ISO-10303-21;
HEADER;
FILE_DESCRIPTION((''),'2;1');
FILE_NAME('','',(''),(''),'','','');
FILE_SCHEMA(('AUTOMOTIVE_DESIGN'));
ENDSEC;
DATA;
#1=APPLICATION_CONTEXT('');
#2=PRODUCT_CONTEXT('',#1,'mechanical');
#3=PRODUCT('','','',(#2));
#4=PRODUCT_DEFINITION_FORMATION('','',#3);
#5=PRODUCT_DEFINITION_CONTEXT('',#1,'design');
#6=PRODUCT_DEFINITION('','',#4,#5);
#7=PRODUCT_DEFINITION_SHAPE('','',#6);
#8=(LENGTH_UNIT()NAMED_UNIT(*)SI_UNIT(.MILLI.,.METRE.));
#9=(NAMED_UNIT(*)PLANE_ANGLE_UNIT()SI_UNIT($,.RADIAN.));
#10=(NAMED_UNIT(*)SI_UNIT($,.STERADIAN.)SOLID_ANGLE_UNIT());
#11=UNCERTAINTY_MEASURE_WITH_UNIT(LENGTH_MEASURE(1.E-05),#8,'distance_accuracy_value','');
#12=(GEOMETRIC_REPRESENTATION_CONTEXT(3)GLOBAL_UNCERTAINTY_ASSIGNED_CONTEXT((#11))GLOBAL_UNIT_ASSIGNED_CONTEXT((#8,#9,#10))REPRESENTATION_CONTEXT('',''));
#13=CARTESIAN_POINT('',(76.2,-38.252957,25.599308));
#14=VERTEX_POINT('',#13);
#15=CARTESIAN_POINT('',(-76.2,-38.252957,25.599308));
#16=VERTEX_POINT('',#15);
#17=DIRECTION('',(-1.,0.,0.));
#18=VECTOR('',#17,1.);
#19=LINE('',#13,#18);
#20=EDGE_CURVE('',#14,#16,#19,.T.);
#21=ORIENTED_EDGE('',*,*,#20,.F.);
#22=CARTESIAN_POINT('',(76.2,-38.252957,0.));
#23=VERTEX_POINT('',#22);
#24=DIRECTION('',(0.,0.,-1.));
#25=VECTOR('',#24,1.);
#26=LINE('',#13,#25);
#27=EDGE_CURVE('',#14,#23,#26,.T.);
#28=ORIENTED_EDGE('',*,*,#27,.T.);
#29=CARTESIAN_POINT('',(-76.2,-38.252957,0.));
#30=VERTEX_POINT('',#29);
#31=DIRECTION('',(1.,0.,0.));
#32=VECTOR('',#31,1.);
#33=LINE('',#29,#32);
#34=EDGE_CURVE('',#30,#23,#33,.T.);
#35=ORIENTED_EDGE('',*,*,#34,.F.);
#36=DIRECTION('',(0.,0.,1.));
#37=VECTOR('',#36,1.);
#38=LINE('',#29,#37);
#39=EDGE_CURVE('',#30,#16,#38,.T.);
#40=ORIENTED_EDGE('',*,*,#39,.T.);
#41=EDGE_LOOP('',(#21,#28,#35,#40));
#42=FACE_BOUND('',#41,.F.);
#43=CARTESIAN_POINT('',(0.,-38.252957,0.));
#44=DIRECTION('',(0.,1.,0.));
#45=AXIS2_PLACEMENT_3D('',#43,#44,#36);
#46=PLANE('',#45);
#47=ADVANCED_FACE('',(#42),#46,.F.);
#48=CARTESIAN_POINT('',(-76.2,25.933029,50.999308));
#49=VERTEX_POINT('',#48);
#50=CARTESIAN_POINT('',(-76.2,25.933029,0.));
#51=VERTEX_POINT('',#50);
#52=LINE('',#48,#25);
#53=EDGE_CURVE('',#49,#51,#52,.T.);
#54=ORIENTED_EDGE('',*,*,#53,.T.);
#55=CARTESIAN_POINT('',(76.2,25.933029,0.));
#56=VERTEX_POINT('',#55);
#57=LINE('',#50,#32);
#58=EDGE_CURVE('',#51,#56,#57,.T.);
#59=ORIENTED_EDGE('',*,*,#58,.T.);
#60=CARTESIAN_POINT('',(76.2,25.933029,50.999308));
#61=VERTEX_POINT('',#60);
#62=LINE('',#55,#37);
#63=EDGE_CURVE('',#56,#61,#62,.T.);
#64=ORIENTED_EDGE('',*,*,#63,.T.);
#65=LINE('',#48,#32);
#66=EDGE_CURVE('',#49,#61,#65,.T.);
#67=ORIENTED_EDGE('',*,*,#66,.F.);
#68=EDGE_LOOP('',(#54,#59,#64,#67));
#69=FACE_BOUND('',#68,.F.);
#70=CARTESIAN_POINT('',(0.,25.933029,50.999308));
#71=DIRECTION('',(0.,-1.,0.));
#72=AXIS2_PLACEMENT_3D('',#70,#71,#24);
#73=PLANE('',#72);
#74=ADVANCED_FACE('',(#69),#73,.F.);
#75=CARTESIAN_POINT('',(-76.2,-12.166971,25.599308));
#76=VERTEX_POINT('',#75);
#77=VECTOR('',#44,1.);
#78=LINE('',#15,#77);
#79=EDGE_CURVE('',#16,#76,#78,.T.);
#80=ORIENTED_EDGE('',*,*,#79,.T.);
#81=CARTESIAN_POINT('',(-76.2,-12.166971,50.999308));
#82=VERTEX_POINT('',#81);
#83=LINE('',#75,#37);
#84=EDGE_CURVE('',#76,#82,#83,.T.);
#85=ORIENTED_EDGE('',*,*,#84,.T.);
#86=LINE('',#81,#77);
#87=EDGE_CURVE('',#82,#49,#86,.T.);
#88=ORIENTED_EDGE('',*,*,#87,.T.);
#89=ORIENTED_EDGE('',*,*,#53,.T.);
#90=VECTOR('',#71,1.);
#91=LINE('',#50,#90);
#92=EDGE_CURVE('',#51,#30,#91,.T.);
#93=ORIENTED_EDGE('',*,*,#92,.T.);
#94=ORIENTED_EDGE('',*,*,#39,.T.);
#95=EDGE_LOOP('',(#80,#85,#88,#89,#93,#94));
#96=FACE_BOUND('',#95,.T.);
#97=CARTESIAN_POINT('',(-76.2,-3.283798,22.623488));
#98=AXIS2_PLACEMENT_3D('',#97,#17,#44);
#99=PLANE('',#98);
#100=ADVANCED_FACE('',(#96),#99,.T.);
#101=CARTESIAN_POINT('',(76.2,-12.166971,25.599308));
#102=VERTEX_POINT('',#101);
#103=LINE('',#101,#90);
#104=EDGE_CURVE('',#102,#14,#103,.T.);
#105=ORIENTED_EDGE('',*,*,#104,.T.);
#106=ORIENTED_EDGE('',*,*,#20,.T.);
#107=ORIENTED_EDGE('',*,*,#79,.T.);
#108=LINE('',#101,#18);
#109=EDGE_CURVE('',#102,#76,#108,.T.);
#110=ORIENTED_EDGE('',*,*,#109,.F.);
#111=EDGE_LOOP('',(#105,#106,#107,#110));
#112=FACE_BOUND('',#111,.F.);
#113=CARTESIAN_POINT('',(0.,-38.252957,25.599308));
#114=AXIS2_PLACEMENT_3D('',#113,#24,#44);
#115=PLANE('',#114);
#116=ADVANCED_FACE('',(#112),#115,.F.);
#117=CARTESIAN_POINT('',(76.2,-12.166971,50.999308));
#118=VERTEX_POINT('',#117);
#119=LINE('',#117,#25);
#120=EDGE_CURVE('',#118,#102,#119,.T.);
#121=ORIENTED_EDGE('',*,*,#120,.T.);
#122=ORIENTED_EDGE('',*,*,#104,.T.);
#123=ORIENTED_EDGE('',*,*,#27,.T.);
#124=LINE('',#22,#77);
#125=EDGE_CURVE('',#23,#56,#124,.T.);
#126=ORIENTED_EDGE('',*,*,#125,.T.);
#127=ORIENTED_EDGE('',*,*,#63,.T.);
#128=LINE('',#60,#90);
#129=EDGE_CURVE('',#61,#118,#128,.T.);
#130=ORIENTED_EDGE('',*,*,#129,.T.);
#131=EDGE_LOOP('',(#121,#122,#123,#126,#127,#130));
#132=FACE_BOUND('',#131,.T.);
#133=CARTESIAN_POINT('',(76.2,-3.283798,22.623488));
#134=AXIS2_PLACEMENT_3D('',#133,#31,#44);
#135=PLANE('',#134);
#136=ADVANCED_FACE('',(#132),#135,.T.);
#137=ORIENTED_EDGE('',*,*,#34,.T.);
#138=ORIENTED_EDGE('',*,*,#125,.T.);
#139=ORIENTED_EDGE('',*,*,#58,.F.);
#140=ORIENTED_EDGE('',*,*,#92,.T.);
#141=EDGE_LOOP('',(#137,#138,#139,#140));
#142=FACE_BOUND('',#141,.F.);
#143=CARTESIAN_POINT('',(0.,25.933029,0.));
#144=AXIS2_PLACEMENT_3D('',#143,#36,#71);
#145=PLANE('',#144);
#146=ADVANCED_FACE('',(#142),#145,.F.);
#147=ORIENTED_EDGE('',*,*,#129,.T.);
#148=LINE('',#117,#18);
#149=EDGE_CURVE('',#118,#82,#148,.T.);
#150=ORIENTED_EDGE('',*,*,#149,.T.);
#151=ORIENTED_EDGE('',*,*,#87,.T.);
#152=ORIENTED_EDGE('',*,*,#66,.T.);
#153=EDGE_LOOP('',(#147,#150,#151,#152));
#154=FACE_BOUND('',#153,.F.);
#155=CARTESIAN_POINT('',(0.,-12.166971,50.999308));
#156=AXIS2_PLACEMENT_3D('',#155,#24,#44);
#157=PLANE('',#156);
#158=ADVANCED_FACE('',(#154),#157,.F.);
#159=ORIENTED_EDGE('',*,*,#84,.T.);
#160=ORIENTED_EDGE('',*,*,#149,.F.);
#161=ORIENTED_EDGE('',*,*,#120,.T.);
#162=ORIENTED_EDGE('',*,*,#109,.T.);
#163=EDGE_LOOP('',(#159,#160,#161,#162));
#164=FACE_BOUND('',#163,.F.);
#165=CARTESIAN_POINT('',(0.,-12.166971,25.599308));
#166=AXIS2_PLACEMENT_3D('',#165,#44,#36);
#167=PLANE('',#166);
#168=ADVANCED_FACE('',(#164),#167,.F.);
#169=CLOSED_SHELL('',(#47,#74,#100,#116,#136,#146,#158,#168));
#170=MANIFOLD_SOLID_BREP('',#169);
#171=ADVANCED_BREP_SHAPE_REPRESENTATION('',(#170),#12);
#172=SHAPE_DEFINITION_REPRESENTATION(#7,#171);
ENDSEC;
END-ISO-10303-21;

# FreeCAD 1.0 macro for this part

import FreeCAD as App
import Part
import Sketcher
from FreeCAD import Vector
Q = App.Units.Quantity

doc = App.newDocument("Part")
body = doc.addObject("PartDesign::Body", "Body")

sketch1 = doc.addObject("Sketcher::SketchObject", "Sketch")
body.addObject(sketch1)
sketch1.AttachmentSupport = (doc.YZ_Plane, [""])
sketch1.MapMode = "FlatFace"
sketch1.addGeometry(Part.LineSegment(Vector(-38, 0, 0), Vector(26, 0, 0)), False)
sketch1.addGeometry(Part.LineSegment(Vector(26, 0, 0), Vector(26, 51, 0)), False)
sketch1.addGeometry(Part.LineSegment(Vector(26, 51, 0), Vector(-12, 51, 0)), False)
sketch1.addGeometry(Part.LineSegment(Vector(-12, 51, 0), Vector(-12, 26, 0)), False)
sketch1.addGeometry(Part.LineSegment(Vector(-12, 26, 0), Vector(-38, 26, 0)), False)
sketch1.addGeometry(Part.LineSegment(Vector(-38, 26, 0), Vector(-38, 0, 0)), False)
sketch1.addConstraint(Sketcher.Constraint("Coincident", 0, 2, 1, 1))
sketch1.addConstraint(Sketcher.Constraint("Coincident", 1, 2, 2, 1))
sketch1.addConstraint(Sketcher.Constraint("Coincident", 2, 2, 3, 1))
sketch1.addConstraint(Sketcher.Constraint("Coincident", 3, 2, 4, 1))
sketch1.addConstraint(Sketcher.Constraint("Coincident", 4, 2, 5, 1))
sketch1.addConstraint(Sketcher.Constraint("Coincident", 5, 2, 0, 1))
sketch1.addConstraint(Sketcher.Constraint("Horizontal", 0))
sketch1.addConstraint(Sketcher.Constraint("Vertical", 1))
sketch1.addConstraint(Sketcher.Constraint("Horizontal", 2))
sketch1.addConstraint(Sketcher.Constraint("Vertical", 3))
sketch1.addConstraint(Sketcher.Constraint("Horizontal", 4))
sketch1.addConstraint(Sketcher.Constraint("Vertical", 5))
sketch1.addConstraint(Sketcher.Constraint("PointOnObject", 0, 2, -1))
sketch1.addConstraint(Sketcher.Constraint("DistanceY", 3, 2, 3, 1, Q("1 in")))
sketch1.addConstraint(Sketcher.Constraint("DistanceX", 2, 2, 2, 1, Q("1.5 in")))
sketch1.addConstraint(Sketcher.Constraint("DistanceY", 5, 2, 5, 1, 25.599308))
sketch1.addConstraint(Sketcher.Constraint("DistanceX", 0, 1, 0, 2, 64.185986))
sketch1.addConstraint(Sketcher.Constraint("DistanceX", -1, 1, 0, 2, 25.933029))
pad1 = doc.addObject("PartDesign::Pad", "Pad")
body.addObject(pad1)
pad1.Profile = sketch1
pad1.Length = Q("3 in")

sketch2 = doc.addObject("Sketcher::SketchObject", "Sketch001")
body.addObject(sketch2)
sketch2.AttachmentSupport = (doc.YZ_Plane, [""])
sketch2.MapMode = "FlatFace"
sketch2.addGeometry(Part.LineSegment(Vector(-38, 0, 0), Vector(-38, 26, 0)), False)
sketch2.addGeometry(Part.LineSegment(Vector(-38, 26, 0), Vector(-12, 26, 0)), False)
sketch2.addGeometry(Part.LineSegment(Vector(-12, 26, 0), Vector(-12, 51, 0)), False)
sketch2.addGeometry(Part.LineSegment(Vector(-12, 51, 0), Vector(26, 51, 0)), False)
sketch2.addGeometry(Part.LineSegment(Vector(26, 51, 0), Vector(26, 0, 0)), False)
sketch2.addGeometry(Part.LineSegment(Vector(26, 0, 0), Vector(-38, 0, 0)), False)
sketch2.addConstraint(Sketcher.Constraint("Coincident", 0, 2, 1, 1))
sketch2.addConstraint(Sketcher.Constraint("Coincident", 1, 2, 2, 1))
sketch2.addConstraint(Sketcher.Constraint("Coincident", 2, 2, 3, 1))
sketch2.addConstraint(Sketcher.Constraint("Coincident", 3, 2, 4, 1))
sketch2.addConstraint(Sketcher.Constraint("Coincident", 4, 2, 5, 1))
sketch2.addConstraint(Sketcher.Constraint("Coincident", 5, 2, 0, 1))
sketch2.addConstraint(Sketcher.Constraint("Vertical", 0))
sketch2.addConstraint(Sketcher.Constraint("Horizontal", 1))
sketch2.addConstraint(Sketcher.Constraint("Vertical", 2))
sketch2.addConstraint(Sketcher.Constraint("Horizontal", 3))
sketch2.addConstraint(Sketcher.Constraint("Vertical", 4))
sketch2.addConstraint(Sketcher.Constraint("Horizontal", 5))
sketch2.addConstraint(Sketcher.Constraint("PointOnObject", 4, 2, -1))
sketch2.addConstraint(Sketcher.Constraint("DistanceY", 2, 1, 2, 2, Q("1 in")))
sketch2.addConstraint(Sketcher.Constraint("DistanceX", 3, 1, 3, 2, Q("1.5 in")))
sketch2.addConstraint(Sketcher.Constraint("DistanceY", 0, 1, 0, 2, 25.599308))
sketch2.addConstraint(Sketcher.Constraint("DistanceX", 1, 1, 1, 2, 26.085986))
sketch2.addConstraint(Sketcher.Constraint("DistanceX", 1, 2, -1, 1, 12.166971))
pad2 = doc.addObject("PartDesign::Pad", "Pad001")
body.addObject(pad2)
pad2.Profile = sketch2
pad2.Length = Q("3 in")
pad2.Reversed = True

doc.recompute()
